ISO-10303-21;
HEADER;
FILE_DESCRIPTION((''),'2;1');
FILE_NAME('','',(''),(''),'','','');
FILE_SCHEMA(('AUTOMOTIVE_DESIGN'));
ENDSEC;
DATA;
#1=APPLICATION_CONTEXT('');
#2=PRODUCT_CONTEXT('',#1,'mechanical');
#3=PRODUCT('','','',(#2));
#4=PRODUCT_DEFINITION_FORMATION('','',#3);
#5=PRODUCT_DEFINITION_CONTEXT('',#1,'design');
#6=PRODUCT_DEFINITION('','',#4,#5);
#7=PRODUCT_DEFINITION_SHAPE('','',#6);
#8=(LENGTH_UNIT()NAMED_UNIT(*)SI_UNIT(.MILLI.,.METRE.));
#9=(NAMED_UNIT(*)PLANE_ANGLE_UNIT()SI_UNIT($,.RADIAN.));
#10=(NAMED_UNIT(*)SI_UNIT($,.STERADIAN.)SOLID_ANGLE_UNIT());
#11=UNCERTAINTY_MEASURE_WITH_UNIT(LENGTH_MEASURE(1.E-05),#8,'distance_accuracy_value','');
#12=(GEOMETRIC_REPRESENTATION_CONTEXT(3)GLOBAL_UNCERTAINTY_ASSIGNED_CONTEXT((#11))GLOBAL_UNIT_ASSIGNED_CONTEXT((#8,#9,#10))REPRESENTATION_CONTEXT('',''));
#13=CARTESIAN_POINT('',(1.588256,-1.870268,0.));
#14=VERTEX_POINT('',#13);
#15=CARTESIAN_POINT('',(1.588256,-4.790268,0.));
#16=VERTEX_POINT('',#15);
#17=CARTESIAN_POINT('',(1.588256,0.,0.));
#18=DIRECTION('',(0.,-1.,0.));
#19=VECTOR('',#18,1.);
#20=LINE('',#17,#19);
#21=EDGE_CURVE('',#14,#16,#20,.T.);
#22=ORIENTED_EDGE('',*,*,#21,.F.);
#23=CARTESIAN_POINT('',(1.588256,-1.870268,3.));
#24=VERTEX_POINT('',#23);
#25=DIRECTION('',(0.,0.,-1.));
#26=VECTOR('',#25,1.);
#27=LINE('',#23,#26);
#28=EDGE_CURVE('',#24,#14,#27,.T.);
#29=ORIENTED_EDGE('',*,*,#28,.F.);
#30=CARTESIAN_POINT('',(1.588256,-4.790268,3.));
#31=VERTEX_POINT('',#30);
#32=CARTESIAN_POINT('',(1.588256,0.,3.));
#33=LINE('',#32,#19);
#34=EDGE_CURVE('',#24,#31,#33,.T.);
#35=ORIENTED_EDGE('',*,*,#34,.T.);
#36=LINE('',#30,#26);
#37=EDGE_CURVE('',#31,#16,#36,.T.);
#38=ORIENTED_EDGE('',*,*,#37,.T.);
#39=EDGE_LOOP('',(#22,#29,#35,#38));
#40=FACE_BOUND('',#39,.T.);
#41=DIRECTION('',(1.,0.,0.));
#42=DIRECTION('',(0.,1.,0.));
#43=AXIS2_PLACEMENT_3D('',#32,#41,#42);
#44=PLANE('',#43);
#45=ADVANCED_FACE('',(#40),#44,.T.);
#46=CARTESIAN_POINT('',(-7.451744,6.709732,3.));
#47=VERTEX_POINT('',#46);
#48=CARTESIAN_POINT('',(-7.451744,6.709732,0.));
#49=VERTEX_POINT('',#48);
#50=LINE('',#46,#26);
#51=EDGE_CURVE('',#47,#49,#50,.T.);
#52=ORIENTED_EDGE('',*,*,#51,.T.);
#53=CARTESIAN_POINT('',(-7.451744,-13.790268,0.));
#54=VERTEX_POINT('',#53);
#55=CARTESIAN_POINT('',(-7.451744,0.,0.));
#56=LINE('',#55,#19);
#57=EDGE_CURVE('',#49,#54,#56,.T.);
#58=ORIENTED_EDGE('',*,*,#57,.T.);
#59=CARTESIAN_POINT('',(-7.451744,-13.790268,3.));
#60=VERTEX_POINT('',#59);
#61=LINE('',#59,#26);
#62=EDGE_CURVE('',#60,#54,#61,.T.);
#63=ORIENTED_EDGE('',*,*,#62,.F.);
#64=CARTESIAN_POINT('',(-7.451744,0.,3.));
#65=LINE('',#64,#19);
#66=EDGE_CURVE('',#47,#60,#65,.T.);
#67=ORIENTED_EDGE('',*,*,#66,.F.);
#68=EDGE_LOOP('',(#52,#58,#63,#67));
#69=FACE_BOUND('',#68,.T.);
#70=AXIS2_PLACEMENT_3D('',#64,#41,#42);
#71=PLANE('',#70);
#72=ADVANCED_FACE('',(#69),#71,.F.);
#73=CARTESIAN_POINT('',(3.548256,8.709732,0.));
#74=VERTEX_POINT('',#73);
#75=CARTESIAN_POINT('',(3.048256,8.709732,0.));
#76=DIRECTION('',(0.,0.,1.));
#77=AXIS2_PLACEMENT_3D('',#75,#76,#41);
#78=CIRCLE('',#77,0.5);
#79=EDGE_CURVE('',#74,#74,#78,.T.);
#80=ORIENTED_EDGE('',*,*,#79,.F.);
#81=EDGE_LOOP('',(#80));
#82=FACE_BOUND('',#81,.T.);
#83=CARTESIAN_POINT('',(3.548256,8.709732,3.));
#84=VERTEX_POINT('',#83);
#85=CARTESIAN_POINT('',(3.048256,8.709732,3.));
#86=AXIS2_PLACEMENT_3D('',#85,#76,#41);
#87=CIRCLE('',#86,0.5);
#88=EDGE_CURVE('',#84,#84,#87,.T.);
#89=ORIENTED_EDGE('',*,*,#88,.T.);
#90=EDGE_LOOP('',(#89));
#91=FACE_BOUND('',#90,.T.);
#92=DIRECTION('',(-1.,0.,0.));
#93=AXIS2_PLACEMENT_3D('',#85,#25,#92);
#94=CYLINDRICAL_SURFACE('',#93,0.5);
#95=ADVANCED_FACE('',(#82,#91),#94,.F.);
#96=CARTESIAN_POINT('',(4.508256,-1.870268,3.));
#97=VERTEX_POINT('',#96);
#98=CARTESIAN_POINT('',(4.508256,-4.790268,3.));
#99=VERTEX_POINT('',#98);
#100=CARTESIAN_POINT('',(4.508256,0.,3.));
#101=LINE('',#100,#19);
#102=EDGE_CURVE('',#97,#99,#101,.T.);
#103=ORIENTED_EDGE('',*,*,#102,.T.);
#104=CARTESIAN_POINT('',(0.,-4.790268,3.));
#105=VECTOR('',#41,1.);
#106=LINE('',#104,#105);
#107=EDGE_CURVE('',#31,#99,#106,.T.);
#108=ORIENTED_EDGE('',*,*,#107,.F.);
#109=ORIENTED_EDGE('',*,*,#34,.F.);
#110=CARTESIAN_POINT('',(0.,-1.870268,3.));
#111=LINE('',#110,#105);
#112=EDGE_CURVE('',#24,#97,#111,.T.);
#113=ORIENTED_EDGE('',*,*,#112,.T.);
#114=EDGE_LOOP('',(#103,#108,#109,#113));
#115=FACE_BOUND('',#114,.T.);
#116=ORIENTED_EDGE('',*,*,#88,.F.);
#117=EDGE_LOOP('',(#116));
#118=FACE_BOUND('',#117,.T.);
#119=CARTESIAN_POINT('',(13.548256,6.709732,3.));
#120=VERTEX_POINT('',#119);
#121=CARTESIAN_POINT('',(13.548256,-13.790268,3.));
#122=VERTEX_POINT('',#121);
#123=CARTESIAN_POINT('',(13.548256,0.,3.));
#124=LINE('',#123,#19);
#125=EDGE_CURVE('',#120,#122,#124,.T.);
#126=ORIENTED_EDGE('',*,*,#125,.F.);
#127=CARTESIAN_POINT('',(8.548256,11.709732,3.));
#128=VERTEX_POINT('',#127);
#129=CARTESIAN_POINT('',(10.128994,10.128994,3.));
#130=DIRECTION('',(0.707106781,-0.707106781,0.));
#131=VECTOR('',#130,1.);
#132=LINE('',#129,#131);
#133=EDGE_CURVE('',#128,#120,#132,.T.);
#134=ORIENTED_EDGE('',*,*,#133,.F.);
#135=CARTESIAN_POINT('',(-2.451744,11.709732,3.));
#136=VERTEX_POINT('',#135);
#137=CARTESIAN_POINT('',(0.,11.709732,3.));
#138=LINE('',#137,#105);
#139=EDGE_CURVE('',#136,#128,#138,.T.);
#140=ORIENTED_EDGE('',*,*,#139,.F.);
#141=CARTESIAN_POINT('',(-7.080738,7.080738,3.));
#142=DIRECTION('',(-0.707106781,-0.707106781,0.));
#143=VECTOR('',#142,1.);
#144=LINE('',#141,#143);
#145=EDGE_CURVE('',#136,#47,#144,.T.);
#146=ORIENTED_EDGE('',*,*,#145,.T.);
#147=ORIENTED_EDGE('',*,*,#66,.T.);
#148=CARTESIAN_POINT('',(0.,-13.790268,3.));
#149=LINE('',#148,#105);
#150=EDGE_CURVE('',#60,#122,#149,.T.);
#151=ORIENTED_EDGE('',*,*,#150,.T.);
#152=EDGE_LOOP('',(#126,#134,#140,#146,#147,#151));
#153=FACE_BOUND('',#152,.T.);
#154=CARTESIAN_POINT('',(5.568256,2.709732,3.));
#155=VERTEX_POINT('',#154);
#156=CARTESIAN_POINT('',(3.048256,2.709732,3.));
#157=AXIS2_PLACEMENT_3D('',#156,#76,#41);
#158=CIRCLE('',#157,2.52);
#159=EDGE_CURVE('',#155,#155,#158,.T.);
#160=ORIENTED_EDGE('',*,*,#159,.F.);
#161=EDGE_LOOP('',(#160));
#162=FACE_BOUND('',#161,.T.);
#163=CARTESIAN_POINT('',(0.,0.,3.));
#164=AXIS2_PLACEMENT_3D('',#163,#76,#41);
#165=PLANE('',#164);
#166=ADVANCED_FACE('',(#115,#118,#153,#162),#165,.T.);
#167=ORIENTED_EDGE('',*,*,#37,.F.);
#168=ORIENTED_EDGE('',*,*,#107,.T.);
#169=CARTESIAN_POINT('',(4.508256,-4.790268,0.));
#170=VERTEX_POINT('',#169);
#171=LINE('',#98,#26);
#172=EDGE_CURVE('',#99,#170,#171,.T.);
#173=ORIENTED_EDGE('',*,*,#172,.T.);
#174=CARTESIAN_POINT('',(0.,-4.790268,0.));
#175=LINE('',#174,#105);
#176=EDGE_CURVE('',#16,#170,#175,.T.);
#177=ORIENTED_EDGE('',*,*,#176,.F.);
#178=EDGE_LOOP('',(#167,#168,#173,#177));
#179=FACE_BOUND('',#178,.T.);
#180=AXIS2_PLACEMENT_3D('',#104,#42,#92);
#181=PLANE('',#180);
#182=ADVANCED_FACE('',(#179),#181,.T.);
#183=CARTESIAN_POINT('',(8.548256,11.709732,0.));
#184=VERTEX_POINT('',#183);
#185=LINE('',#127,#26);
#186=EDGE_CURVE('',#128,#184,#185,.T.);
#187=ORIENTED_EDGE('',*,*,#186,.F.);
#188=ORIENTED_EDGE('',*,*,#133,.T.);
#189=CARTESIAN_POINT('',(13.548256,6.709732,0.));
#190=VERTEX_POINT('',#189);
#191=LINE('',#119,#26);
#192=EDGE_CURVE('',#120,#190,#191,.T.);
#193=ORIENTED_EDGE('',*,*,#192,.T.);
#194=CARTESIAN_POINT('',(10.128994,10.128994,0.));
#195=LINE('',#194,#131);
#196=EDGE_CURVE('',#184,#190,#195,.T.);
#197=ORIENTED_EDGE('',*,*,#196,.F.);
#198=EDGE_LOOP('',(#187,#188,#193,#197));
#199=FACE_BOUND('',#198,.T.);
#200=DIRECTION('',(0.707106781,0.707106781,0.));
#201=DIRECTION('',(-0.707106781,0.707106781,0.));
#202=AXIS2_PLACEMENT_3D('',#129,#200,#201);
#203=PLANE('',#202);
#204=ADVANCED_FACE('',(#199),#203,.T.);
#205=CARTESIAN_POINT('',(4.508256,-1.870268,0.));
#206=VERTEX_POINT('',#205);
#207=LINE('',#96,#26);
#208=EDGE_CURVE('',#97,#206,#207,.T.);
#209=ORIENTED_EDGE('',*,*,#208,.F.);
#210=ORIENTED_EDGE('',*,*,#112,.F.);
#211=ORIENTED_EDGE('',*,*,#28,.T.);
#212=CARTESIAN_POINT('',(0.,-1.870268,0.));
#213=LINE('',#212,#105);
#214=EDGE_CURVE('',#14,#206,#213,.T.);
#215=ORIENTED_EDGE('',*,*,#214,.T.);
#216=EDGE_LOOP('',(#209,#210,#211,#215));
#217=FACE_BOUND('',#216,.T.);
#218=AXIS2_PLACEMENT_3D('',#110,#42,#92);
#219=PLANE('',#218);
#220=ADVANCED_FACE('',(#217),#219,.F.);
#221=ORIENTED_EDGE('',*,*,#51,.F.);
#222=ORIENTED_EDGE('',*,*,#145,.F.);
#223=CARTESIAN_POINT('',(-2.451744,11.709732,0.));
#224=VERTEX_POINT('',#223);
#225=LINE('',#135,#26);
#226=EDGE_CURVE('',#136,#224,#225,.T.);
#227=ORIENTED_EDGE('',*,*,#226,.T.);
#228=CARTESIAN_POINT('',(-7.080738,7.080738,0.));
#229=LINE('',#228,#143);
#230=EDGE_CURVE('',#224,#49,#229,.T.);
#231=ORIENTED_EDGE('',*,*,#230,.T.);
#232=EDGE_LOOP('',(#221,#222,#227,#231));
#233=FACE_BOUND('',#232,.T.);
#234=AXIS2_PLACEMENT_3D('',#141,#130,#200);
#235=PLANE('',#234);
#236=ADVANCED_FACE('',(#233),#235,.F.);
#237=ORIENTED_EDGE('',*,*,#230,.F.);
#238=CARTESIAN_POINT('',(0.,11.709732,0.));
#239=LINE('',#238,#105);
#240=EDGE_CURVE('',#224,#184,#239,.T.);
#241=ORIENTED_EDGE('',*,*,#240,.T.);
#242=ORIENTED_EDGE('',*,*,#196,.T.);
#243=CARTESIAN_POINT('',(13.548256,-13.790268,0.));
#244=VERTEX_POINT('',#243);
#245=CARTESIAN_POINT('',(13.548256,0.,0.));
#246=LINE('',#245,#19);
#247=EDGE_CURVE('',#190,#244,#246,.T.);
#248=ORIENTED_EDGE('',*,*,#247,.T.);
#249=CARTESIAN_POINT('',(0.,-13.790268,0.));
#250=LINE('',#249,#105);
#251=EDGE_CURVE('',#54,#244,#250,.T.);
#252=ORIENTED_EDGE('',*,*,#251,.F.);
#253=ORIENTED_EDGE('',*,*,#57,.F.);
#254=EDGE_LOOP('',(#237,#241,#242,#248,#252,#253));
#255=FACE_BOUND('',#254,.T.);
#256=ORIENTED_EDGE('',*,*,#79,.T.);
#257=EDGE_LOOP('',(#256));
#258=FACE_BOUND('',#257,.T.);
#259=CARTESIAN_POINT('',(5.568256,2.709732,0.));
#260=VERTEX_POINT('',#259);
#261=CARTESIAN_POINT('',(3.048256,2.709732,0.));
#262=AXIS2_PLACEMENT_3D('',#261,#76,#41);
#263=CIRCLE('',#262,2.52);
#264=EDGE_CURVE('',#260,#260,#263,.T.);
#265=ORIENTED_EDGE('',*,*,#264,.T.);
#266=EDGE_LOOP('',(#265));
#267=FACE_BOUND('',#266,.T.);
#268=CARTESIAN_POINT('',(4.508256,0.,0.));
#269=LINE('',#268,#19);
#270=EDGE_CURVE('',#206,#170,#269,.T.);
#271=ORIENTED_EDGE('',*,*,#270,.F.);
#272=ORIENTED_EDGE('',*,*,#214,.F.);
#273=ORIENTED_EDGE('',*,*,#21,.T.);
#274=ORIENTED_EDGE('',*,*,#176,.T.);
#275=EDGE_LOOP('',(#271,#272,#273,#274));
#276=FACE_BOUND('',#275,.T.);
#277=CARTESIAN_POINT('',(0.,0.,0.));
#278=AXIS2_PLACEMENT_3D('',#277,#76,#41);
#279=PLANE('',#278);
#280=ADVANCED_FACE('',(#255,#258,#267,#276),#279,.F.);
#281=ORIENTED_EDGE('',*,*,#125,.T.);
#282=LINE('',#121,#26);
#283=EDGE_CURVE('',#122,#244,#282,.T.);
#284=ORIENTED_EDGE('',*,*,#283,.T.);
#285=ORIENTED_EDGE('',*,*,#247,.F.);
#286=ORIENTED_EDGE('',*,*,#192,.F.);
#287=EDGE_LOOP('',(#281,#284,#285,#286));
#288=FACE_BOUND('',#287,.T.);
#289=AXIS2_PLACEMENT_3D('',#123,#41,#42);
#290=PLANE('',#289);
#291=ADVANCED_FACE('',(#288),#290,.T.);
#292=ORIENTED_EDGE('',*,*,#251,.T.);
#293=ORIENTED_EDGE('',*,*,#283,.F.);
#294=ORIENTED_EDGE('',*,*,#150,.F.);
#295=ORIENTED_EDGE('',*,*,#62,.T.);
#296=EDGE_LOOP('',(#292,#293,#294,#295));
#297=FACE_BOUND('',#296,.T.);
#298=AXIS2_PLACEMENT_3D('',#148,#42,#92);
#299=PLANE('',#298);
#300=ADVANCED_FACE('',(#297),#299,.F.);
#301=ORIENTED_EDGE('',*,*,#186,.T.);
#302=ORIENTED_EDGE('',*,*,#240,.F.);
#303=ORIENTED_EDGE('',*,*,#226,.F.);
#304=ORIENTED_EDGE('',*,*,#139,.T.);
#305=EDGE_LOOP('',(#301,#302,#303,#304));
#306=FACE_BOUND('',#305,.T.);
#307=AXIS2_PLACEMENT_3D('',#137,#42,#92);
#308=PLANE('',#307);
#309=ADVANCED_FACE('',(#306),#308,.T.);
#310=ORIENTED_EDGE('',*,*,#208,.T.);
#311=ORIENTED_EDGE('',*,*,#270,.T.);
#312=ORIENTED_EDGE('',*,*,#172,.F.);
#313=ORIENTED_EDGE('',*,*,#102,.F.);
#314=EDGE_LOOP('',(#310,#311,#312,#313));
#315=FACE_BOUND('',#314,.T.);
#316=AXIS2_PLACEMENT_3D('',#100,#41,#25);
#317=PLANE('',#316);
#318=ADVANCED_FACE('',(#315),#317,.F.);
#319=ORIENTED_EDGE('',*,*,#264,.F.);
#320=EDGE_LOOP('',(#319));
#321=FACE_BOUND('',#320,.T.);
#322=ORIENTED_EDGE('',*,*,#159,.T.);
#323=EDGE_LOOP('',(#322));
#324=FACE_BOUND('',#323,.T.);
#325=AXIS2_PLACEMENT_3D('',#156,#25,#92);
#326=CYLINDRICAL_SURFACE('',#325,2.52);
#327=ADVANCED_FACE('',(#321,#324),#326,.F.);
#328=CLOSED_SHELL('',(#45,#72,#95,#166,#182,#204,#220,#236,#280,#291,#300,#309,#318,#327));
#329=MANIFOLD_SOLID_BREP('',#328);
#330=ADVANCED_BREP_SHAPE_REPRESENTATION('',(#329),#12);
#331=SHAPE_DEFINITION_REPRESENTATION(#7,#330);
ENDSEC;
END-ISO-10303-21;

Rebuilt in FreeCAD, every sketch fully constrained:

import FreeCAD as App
import Part
import Sketcher

V = App.Vector
Q = App.Units.Quantity


def add_polygon(sketch, points):
    """Adds a closed chain of lines whose ends are joined by coincident constraints."""
    first, n = sketch.GeometryCount, len(points)
    for a, b in zip(points, points[1:] + points[:1]):
        sketch.addGeometry(Part.LineSegment(App.Vector(*a, 0), App.Vector(*b, 0)), False)
    for i in range(n):
        sketch.addConstraint(Sketcher.Constraint("Coincident", first + i, 2, first + (i + 1) % n, 1))

doc = App.newDocument("Part")
body = doc.addObject("PartDesign::Body", "Body")

# Sketch on XY plane
sketch1 = body.newObject("Sketcher::SketchObject", "Sketch")
sketch1.AttachmentSupport = (doc.getObject("XY_Plane"), [""])
sketch1.MapMode = "FlatFace"
add_polygon(sketch1, [(13.548256, 6.709732), (8.548256, 11.709732), (-2.451744, 11.709732), (-7.451744, 6.709732), (-7.451744, -13.790268), (13.548256, -13.790268)])  # lines 0-5
add_polygon(sketch1, [(4.508256, -4.790268), (1.588256, -4.790268), (1.588256, -1.870268), (4.508256, -1.870268)])  # lines 6-9
sketch1.addGeometry(Part.Circle(V(3.048256, 2.709732, 0), V(0, 0, 1), 2.52), False)  # 10
sketch1.addGeometry(Part.Circle(V(3.048256, 8.709732, 0), V(0, 0, 1), 0.5), False)  # 11
sketch1.addConstraint(Sketcher.Constraint("Horizontal", 1))
sketch1.addConstraint(Sketcher.Constraint("Vertical", 3))
sketch1.addConstraint(Sketcher.Constraint("Horizontal", 4))
sketch1.addConstraint(Sketcher.Constraint("Vertical", 5))
sketch1.addConstraint(Sketcher.Constraint("Horizontal", 6))
sketch1.addConstraint(Sketcher.Constraint("Vertical", 7))
sketch1.addConstraint(Sketcher.Constraint("Horizontal", 8))
sketch1.addConstraint(Sketcher.Constraint("Vertical", 9))
sketch1.addConstraint(Sketcher.Constraint("Perpendicular", 0, 2))
sketch1.addConstraint(Sketcher.Constraint("Horizontal", 2, 2, 5, 2))
sketch1.addConstraint(Sketcher.Constraint("Vertical", 10, 3, 11, 3))
sketch1.addConstraint(Sketcher.Constraint("Equal", 8, 7))
sketch1.addConstraint(Sketcher.Constraint("Equal", 0, 2))
sketch1.addConstraint(Sketcher.Constraint("Diameter", 11, Q("1 mm")))
sketch1.addConstraint(Sketcher.Constraint("Diameter", 10, Q("5.04 mm")))
sketch1.addConstraint(Sketcher.Constraint("DistanceX", 1, 2, 1, 1, Q("11 mm")))
sketch1.addConstraint(Sketcher.Constraint("DistanceX", 4, 1, 4, 2, Q("21 mm")))
sketch1.addConstraint(Sketcher.Constraint("DistanceY", 3, 2, 3, 1, Q("20.5 mm")))
sketch1.addConstraint(Sketcher.Constraint("DistanceY", 10, 3, 11, 3, Q("6 mm")))
sketch1.addConstraint(Sketcher.Constraint("DistanceY", 11, 3, 0, 2, Q("3 mm")))
sketch1.addConstraint(Sketcher.Constraint("DistanceY", 3, 2, 6, 2, Q("9 mm")))
sketch1.addConstraint(Sketcher.Constraint("DistanceX", 6, 2, 6, 1, Q("2.92 mm")))
sketch1.addConstraint(Sketcher.Constraint("DistanceX", 11, 3, 0, 2, Q("5.5 mm")))
sketch1.addConstraint(Sketcher.Constraint("DistanceX", 6, 2, 10, 3, Q("1.46 mm")))
sketch1.addConstraint(Sketcher.Constraint("DistanceY", -1, 1, 10, 3, Q("2.709732 mm")))
sketch1.addConstraint(Sketcher.Constraint("DistanceX", -1, 1, 10, 3, Q("3.048256 mm")))
pad1 = body.newObject("PartDesign::Pad", "Pad")
pad1.Profile = sketch1
pad1.Length = 3

doc.recompute()
